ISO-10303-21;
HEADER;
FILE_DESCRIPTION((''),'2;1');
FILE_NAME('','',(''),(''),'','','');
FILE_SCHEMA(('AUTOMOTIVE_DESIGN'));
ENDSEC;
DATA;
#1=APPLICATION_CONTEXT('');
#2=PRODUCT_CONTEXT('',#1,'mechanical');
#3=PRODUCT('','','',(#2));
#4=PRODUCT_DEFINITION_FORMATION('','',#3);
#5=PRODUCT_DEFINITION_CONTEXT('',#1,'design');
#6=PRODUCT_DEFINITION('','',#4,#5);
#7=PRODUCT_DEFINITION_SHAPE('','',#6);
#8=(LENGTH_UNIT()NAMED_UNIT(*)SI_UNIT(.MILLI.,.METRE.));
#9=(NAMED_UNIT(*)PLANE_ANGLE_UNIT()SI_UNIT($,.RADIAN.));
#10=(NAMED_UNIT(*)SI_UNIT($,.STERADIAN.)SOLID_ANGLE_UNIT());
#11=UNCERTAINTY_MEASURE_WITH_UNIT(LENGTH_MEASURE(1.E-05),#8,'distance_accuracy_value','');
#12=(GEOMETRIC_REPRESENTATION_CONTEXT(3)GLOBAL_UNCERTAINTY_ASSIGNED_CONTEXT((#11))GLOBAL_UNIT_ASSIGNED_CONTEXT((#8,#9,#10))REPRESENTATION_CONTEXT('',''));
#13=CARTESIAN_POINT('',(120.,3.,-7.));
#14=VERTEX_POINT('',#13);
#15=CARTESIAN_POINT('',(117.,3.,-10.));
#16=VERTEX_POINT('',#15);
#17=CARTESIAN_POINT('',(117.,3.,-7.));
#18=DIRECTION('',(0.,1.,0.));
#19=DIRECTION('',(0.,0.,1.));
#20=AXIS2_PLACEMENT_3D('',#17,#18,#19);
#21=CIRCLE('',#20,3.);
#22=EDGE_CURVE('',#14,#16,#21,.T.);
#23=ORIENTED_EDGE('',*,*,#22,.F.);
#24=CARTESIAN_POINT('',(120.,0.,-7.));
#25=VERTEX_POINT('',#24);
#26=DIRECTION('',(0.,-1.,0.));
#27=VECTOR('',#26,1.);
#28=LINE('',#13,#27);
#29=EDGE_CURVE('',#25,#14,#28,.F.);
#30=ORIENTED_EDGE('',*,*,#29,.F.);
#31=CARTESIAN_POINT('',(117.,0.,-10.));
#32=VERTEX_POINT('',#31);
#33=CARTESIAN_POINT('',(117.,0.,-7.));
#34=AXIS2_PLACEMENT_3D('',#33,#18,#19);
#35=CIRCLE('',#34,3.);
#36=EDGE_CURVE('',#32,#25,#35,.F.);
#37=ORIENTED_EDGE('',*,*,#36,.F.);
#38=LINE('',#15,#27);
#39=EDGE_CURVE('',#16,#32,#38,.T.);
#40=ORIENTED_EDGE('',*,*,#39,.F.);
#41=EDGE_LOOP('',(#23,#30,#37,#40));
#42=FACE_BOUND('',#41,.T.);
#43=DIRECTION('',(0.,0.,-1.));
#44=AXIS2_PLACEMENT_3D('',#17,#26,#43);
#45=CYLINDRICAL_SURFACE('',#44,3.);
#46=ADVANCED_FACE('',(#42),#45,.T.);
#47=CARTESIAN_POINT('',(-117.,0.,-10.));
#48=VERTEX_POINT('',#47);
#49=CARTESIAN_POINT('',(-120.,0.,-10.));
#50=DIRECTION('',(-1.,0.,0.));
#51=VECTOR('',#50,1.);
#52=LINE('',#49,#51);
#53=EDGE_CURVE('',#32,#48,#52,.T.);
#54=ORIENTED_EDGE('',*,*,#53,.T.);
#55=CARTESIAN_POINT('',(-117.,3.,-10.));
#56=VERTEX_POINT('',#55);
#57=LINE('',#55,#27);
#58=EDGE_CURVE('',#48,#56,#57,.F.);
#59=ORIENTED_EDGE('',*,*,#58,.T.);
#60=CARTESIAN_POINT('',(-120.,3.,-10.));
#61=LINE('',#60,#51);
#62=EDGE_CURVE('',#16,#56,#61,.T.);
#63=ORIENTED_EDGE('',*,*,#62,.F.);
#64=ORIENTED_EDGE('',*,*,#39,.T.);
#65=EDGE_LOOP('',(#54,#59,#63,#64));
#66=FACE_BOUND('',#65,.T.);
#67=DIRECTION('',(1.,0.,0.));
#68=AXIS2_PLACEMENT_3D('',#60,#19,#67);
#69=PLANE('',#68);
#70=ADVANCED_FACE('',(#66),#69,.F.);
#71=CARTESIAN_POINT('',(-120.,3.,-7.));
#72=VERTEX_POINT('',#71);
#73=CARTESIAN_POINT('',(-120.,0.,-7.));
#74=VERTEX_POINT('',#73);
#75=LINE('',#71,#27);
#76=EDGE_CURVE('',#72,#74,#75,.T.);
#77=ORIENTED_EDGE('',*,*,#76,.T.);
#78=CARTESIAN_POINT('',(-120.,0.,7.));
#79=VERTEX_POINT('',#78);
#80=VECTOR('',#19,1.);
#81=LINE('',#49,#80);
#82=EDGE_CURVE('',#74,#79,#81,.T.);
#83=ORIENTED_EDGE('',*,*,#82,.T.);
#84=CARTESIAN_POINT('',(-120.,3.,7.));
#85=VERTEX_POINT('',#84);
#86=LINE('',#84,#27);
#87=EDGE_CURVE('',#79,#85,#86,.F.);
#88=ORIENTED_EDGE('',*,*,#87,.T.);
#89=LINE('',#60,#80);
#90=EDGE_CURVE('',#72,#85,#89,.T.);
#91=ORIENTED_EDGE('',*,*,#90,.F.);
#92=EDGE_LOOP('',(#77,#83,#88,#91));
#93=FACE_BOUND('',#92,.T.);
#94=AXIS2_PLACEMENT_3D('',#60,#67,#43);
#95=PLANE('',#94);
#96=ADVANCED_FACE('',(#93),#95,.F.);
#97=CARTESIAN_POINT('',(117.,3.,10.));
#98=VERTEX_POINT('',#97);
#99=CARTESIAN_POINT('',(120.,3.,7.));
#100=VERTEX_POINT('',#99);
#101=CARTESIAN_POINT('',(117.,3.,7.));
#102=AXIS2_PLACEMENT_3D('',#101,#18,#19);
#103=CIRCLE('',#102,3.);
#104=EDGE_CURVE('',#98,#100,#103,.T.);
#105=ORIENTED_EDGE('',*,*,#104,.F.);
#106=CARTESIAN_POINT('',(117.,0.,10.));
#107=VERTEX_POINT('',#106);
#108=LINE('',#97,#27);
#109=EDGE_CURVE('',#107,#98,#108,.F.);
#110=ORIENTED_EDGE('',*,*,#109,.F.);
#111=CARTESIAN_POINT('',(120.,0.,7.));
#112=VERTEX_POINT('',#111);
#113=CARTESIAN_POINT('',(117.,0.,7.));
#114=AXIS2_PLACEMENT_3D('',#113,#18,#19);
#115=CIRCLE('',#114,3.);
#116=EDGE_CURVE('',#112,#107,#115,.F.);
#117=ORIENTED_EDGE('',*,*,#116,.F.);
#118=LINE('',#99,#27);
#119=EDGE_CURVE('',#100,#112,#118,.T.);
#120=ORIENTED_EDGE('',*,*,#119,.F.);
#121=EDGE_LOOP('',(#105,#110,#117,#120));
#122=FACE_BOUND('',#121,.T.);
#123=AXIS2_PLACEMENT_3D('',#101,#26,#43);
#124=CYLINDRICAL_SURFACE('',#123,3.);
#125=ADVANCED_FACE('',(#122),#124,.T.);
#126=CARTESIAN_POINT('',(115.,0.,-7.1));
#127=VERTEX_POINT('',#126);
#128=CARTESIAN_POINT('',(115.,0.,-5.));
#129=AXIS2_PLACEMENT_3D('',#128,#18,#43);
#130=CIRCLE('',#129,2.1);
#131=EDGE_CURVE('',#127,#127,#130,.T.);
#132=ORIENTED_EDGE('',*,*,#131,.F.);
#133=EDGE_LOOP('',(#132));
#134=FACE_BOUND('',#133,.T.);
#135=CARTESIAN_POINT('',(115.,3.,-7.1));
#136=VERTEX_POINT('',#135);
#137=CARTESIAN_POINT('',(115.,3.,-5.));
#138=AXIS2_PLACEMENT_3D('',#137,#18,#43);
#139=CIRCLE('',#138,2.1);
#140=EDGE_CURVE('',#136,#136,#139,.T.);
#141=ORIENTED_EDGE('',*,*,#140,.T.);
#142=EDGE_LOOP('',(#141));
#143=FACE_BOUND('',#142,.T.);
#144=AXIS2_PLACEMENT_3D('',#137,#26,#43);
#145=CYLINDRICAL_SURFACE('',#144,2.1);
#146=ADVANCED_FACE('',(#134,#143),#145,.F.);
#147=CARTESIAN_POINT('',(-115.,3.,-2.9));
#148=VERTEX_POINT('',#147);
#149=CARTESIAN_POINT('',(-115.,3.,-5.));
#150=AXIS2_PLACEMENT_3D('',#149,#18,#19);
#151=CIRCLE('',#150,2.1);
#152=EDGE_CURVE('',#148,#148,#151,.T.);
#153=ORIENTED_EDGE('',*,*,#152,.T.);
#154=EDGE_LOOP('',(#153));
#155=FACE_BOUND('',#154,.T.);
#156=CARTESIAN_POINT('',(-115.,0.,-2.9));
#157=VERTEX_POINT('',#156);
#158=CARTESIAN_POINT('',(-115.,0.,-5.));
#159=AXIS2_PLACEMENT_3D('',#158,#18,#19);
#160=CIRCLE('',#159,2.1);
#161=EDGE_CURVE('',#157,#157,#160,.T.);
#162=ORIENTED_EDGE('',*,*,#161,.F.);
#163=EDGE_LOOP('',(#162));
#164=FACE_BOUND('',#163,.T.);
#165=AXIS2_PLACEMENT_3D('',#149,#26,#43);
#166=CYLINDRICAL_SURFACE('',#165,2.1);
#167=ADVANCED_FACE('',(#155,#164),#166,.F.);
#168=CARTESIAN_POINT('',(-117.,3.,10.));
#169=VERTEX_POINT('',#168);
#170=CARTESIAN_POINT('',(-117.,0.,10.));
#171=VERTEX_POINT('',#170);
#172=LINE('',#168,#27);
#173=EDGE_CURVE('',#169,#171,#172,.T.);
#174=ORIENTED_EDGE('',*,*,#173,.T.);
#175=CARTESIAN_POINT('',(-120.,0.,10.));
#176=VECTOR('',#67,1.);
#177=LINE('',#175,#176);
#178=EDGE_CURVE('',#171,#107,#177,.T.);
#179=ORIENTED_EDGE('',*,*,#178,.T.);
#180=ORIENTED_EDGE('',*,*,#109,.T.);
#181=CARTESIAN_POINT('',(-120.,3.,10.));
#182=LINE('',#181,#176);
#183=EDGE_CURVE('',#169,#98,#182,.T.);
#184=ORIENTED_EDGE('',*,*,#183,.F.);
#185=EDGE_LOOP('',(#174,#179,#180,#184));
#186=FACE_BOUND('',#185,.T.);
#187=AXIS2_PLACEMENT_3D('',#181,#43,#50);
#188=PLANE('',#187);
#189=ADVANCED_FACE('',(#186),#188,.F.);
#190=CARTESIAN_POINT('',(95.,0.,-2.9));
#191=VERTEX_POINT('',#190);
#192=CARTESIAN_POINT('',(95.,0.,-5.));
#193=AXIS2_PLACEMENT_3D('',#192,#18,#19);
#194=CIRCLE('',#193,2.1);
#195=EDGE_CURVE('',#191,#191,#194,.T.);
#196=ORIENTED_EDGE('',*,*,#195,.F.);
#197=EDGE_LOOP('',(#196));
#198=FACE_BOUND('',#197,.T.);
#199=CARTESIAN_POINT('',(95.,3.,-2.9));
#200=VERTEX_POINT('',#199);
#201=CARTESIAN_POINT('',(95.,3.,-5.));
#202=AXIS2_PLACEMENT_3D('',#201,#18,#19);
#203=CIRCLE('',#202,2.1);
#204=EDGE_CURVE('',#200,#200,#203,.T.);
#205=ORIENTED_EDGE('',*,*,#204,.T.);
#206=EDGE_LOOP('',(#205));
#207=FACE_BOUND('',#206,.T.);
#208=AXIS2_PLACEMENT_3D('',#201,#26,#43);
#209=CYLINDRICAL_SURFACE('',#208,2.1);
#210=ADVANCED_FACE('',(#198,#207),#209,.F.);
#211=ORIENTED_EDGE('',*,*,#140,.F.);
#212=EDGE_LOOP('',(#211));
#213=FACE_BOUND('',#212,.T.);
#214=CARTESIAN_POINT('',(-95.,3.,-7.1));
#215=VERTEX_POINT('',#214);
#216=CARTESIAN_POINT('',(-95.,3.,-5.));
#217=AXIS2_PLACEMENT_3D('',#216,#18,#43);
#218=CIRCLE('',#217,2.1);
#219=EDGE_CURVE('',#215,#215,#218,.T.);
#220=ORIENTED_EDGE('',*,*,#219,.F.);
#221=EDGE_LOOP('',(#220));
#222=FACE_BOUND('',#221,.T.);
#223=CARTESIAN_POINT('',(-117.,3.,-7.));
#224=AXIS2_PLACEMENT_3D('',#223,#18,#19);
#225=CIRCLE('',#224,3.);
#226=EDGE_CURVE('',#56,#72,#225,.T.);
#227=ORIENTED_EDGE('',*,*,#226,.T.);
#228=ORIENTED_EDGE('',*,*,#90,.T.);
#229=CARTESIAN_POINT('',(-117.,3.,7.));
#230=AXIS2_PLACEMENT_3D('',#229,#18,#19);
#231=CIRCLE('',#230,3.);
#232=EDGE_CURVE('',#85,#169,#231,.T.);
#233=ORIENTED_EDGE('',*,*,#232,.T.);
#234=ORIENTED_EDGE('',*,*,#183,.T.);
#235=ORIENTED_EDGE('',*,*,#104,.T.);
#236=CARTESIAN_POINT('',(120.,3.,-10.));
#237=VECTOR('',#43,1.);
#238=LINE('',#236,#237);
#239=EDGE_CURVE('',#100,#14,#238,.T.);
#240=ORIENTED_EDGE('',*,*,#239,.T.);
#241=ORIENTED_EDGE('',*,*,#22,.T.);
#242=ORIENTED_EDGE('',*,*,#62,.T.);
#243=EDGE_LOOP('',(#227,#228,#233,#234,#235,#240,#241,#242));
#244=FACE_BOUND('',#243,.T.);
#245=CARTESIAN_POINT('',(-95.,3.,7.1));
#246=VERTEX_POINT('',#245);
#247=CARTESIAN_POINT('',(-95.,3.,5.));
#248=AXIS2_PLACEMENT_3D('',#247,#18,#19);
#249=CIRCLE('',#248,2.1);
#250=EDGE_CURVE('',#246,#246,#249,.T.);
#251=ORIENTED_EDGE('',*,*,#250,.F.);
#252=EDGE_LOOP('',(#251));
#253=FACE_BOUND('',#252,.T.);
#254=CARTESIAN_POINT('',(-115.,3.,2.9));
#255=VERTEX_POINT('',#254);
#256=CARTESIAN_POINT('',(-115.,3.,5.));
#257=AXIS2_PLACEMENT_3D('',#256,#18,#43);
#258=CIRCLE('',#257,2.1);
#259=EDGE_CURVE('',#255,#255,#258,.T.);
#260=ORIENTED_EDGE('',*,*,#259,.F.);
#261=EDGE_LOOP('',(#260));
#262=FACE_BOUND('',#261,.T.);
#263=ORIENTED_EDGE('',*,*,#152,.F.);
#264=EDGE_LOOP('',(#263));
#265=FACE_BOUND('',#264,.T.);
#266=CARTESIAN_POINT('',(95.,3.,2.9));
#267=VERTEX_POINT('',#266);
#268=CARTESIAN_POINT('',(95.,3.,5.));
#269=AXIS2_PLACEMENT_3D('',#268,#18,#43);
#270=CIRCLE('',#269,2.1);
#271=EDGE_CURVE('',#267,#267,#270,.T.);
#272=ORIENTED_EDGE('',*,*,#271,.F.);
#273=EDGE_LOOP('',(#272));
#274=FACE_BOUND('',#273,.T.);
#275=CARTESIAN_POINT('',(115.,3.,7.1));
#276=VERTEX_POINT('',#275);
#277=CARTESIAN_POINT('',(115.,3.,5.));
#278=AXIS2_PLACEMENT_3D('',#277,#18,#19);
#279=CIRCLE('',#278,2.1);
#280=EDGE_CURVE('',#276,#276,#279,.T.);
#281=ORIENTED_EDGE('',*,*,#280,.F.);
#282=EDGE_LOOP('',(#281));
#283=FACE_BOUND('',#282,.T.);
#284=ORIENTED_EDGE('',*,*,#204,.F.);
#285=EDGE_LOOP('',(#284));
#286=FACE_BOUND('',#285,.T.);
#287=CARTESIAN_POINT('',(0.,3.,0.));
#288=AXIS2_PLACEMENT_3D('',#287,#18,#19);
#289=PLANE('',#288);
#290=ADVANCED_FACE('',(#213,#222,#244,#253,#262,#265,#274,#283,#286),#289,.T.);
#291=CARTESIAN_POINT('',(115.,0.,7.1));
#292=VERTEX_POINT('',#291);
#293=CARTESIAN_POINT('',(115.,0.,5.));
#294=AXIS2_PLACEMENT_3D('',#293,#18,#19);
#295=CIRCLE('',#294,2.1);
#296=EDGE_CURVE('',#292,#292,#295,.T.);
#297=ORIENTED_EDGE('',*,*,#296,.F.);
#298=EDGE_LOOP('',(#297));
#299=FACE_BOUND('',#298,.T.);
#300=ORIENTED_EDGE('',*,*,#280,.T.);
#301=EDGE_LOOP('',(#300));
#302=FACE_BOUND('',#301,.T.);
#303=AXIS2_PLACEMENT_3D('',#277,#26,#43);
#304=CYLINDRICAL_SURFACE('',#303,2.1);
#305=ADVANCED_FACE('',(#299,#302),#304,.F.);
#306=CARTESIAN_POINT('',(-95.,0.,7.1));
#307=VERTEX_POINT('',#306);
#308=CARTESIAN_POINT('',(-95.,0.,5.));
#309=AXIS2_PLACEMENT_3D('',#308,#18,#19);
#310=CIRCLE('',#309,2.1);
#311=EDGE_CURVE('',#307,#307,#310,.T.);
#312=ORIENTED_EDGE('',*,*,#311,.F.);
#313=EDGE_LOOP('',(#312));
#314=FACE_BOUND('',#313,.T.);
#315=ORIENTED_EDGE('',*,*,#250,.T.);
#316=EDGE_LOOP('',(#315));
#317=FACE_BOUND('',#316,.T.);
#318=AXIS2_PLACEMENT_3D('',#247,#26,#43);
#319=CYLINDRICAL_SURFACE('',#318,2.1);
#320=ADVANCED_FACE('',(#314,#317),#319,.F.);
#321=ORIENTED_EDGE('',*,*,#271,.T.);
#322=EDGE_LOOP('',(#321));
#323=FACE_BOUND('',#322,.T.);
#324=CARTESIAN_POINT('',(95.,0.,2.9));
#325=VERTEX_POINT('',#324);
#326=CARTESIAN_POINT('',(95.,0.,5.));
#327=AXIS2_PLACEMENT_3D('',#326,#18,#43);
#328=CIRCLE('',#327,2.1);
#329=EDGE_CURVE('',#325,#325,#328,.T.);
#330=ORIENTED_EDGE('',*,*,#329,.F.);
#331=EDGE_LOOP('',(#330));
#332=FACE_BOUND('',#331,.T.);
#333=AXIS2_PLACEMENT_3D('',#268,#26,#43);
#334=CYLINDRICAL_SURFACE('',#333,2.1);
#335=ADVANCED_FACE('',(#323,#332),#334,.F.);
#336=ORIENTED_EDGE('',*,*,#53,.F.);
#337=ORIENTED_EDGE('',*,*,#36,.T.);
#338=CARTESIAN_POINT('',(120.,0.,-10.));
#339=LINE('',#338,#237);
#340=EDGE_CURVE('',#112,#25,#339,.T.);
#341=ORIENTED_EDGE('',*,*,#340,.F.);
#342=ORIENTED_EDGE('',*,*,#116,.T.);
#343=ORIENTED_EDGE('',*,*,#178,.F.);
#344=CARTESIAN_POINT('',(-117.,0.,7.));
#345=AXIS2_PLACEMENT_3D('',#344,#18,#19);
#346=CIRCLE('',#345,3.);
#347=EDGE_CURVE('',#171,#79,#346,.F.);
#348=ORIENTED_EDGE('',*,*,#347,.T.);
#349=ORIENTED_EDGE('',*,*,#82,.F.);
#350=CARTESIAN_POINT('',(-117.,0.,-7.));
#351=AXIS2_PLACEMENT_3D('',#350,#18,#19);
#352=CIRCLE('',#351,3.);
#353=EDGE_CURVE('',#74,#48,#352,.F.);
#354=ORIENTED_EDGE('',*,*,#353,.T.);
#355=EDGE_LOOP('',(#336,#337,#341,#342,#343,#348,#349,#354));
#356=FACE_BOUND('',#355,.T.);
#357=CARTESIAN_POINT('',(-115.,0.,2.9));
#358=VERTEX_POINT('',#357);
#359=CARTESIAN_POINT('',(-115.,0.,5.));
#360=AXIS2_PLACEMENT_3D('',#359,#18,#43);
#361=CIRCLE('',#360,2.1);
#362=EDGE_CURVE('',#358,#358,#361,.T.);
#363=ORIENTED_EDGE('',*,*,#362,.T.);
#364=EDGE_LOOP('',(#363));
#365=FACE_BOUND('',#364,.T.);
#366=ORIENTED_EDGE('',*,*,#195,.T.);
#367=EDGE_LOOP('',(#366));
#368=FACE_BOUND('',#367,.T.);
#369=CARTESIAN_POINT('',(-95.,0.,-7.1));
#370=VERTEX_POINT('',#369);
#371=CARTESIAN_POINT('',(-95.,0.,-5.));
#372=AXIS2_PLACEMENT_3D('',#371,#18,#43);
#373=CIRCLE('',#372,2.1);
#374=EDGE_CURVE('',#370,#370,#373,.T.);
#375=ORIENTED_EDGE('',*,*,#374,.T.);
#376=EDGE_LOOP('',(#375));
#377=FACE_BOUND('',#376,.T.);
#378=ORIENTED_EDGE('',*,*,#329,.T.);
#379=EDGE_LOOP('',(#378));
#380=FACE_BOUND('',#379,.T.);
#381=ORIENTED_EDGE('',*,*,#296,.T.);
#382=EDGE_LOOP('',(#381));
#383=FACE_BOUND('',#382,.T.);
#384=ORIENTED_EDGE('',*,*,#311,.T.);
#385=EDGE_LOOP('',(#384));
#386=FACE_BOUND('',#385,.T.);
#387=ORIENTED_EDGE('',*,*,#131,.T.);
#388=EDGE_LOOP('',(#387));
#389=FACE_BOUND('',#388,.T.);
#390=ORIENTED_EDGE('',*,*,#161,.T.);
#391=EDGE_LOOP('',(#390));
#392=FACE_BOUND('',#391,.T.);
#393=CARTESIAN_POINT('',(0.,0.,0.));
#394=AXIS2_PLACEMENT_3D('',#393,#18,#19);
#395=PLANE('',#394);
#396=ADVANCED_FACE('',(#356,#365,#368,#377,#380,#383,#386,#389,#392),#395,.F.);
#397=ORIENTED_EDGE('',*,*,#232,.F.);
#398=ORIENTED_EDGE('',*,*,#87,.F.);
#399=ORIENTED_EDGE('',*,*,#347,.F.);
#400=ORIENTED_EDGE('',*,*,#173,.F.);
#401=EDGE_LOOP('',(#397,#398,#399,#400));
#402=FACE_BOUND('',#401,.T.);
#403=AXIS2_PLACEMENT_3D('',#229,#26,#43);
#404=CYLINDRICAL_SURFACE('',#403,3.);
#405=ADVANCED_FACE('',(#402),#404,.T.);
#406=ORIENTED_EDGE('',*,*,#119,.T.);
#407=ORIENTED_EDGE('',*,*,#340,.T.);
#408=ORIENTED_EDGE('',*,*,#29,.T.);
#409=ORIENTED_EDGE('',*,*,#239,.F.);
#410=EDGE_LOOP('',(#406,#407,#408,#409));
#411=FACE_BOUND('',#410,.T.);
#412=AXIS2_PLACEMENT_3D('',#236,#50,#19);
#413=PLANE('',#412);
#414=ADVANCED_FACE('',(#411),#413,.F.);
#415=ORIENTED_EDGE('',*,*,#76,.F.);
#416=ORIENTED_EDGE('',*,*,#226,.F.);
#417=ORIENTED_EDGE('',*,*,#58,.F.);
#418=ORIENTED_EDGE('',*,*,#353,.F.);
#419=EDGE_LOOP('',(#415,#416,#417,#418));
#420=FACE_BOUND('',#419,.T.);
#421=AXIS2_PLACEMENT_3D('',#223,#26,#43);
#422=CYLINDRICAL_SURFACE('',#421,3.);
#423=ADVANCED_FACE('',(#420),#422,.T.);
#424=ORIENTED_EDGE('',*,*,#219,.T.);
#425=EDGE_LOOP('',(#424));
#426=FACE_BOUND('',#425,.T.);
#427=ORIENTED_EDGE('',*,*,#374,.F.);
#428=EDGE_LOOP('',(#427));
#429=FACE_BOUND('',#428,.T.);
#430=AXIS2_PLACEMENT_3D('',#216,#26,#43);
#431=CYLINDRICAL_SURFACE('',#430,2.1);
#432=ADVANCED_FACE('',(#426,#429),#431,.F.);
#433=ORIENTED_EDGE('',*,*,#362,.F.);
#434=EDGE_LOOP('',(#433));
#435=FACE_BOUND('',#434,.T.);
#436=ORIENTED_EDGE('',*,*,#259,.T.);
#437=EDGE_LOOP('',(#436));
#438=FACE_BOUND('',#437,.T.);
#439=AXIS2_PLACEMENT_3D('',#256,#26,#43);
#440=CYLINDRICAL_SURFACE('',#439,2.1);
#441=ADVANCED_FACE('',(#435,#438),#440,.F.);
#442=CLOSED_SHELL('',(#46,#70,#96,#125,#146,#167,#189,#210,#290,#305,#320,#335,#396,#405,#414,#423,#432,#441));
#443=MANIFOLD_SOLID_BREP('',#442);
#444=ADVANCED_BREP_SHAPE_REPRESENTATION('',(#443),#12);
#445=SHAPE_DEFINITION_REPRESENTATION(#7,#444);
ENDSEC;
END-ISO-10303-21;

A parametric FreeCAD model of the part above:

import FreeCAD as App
import Part
import Sketcher

V = App.Vector


def edges_at(feature, points):
    """Names of the edges that pass closest to the given points."""
    edges = feature.Shape.Edges
    near = lambda p: min(range(len(edges)), key=lambda i: edges[i].distToShape(Part.Vertex(*p))[0])
    return sorted({f"Edge{near(p) + 1}" for p in points})

doc = App.newDocument("Part")
params = doc.addObject("Spreadsheet::Sheet", "Params")
for row, (alias, value) in enumerate([
    ("sketch1_diameter", "4.2 mm"),
    ("sketch1_width", "240 mm"),
    ("sketch1_height", "20 mm"),
    ("pad1_length", "3 mm"),
    ("fillet_radius", "3 mm"),
], start=1):
    params.set(f"A{row}", alias)
    params.set(f"B{row}", "=" + value)
    params.setAlias(f"B{row}", alias)

body = doc.addObject("PartDesign::Body", "Body")

# Sketch on XZ plane
sketch1 = body.newObject("Sketcher::SketchObject", "Sketch")
sketch1.AttachmentSupport = (doc.getObject("XZ_Plane"), [""])
sketch1.MapMode = "FlatFace"
sketch1.addGeometry(Part.LineSegment(V(-120, -10, 0), V(-120, 10, 0)), False)
sketch1.addGeometry(Part.LineSegment(V(-120, 10, 0), V(120, 10, 0)), False)
sketch1.addGeometry(Part.LineSegment(V(120, 10, 0), V(120, -10, 0)), False)
sketch1.addGeometry(Part.LineSegment(V(120, -10, 0), V(-120, -10, 0)), False)
sketch1.addGeometry(Part.Circle(V(-115, 5, 0), V(0, 0, 1), 2.1), False)
sketch1.addGeometry(Part.Circle(V(-95, 5, 0), V(0, 0, 1), 2.1), False)
sketch1.addGeometry(Part.Circle(V(95, 5, 0), V(0, 0, 1), 2.1), False)
sketch1.addGeometry(Part.Circle(V(115, 5, 0), V(0, 0, 1), 2.1), False)
sketch1.addGeometry(Part.Circle(V(-115, -5, 0), V(0, 0, 1), 2.1), False)
sketch1.addGeometry(Part.Circle(V(-95, -5, 0), V(0, 0, 1), 2.1), False)
sketch1.addGeometry(Part.Circle(V(95, -5, 0), V(0, 0, 1), 2.1), False)
sketch1.addGeometry(Part.Circle(V(115, -5, 0), V(0, 0, 1), 2.1), False)
sketch1.addConstraint(Sketcher.Constraint("Coincident", 0, 2, 1, 1))
sketch1.addConstraint(Sketcher.Constraint("Coincident", 1, 2, 2, 1))
sketch1.addConstraint(Sketcher.Constraint("Coincident", 2, 2, 3, 1))
sketch1.addConstraint(Sketcher.Constraint("Coincident", 3, 2, 0, 1))
sketch1.addConstraint(Sketcher.Constraint("Vertical", 0))
sketch1.addConstraint(Sketcher.Constraint("Horizontal", 1))
sketch1.addConstraint(Sketcher.Constraint("Vertical", 2))
sketch1.addConstraint(Sketcher.Constraint("Horizontal", 3))
sketch1.addConstraint(Sketcher.Constraint("Equal", 4, 5))
sketch1.addConstraint(Sketcher.Constraint("Equal", 5, 6))
sketch1.addConstraint(Sketcher.Constraint("Equal", 6, 7))
sketch1.addConstraint(Sketcher.Constraint("Equal", 7, 8))
sketch1.addConstraint(Sketcher.Constraint("Equal", 8, 9))
sketch1.addConstraint(Sketcher.Constraint("Equal", 9, 10))
sketch1.addConstraint(Sketcher.Constraint("Equal", 10, 11))
sketch1.addConstraint(Sketcher.Constraint("Symmetric", 7, 3, 8, 3, -1, 1))
sketch1.addConstraint(Sketcher.Constraint("Symmetric", 6, 3, 9, 3, -1, 1))
sketch1.addConstraint(Sketcher.Constraint("Symmetric", 5, 3, 10, 3, -1, 1))
sketch1.addConstraint(Sketcher.Constraint("Symmetric", 4, 3, 11, 3, -1, 1))
sketch1.addConstraint(Sketcher.Constraint("Symmetric", 0, 2, 2, 2, -1, 1))
sketch1.addConstraint(Sketcher.Constraint("Symmetric", 5, 3, 6, 3, -2))
sketch1.addConstraint(Sketcher.Constraint("Symmetric", 4, 3, 7, 3, -2))
sketch1.addConstraint(Sketcher.Constraint("Horizontal", 4, 3, 5, 3))
sketch1.addConstraint(Sketcher.Constraint("Diameter", 4, 4.2))
sketch1.addConstraint(Sketcher.Constraint("DistanceX", 1, 1, 1, 2, 240.0))
sketch1.addConstraint(Sketcher.Constraint("DistanceY", 0, 1, 0, 2, 20.0))
sketch1.addConstraint(Sketcher.Constraint("DistanceX", 4, 3, -1, 1, 115.0))
sketch1.addConstraint(Sketcher.Constraint("DistanceY", -1, 1, 4, 3, 5.0))
sketch1.addConstraint(Sketcher.Constraint("DistanceX", 5, 3, -1, 1, 95.0))
sketch1.setExpression("Constraints[23]", "Params.sketch1_diameter")
sketch1.setExpression("Constraints[24]", "Params.sketch1_width")
sketch1.setExpression("Constraints[25]", "Params.sketch1_height")
pad1 = body.newObject("PartDesign::Pad", "Pad")
pad1.Profile = sketch1
pad1.setExpression("Length", "Params.pad1_length")
pad1.Reversed = True
doc.recompute()

fillet = body.newObject("PartDesign::Fillet", "Fillet")
fillet.Base = (pad1, edges_at(pad1, [
    (120, 1.5, 10),
    (-120, 1.5, 10),
    (-120, 1.5, -10),
    (120, 1.5, -10),
]))
fillet.setExpression("Radius", "Params.fillet_radius")

doc.recompute()
